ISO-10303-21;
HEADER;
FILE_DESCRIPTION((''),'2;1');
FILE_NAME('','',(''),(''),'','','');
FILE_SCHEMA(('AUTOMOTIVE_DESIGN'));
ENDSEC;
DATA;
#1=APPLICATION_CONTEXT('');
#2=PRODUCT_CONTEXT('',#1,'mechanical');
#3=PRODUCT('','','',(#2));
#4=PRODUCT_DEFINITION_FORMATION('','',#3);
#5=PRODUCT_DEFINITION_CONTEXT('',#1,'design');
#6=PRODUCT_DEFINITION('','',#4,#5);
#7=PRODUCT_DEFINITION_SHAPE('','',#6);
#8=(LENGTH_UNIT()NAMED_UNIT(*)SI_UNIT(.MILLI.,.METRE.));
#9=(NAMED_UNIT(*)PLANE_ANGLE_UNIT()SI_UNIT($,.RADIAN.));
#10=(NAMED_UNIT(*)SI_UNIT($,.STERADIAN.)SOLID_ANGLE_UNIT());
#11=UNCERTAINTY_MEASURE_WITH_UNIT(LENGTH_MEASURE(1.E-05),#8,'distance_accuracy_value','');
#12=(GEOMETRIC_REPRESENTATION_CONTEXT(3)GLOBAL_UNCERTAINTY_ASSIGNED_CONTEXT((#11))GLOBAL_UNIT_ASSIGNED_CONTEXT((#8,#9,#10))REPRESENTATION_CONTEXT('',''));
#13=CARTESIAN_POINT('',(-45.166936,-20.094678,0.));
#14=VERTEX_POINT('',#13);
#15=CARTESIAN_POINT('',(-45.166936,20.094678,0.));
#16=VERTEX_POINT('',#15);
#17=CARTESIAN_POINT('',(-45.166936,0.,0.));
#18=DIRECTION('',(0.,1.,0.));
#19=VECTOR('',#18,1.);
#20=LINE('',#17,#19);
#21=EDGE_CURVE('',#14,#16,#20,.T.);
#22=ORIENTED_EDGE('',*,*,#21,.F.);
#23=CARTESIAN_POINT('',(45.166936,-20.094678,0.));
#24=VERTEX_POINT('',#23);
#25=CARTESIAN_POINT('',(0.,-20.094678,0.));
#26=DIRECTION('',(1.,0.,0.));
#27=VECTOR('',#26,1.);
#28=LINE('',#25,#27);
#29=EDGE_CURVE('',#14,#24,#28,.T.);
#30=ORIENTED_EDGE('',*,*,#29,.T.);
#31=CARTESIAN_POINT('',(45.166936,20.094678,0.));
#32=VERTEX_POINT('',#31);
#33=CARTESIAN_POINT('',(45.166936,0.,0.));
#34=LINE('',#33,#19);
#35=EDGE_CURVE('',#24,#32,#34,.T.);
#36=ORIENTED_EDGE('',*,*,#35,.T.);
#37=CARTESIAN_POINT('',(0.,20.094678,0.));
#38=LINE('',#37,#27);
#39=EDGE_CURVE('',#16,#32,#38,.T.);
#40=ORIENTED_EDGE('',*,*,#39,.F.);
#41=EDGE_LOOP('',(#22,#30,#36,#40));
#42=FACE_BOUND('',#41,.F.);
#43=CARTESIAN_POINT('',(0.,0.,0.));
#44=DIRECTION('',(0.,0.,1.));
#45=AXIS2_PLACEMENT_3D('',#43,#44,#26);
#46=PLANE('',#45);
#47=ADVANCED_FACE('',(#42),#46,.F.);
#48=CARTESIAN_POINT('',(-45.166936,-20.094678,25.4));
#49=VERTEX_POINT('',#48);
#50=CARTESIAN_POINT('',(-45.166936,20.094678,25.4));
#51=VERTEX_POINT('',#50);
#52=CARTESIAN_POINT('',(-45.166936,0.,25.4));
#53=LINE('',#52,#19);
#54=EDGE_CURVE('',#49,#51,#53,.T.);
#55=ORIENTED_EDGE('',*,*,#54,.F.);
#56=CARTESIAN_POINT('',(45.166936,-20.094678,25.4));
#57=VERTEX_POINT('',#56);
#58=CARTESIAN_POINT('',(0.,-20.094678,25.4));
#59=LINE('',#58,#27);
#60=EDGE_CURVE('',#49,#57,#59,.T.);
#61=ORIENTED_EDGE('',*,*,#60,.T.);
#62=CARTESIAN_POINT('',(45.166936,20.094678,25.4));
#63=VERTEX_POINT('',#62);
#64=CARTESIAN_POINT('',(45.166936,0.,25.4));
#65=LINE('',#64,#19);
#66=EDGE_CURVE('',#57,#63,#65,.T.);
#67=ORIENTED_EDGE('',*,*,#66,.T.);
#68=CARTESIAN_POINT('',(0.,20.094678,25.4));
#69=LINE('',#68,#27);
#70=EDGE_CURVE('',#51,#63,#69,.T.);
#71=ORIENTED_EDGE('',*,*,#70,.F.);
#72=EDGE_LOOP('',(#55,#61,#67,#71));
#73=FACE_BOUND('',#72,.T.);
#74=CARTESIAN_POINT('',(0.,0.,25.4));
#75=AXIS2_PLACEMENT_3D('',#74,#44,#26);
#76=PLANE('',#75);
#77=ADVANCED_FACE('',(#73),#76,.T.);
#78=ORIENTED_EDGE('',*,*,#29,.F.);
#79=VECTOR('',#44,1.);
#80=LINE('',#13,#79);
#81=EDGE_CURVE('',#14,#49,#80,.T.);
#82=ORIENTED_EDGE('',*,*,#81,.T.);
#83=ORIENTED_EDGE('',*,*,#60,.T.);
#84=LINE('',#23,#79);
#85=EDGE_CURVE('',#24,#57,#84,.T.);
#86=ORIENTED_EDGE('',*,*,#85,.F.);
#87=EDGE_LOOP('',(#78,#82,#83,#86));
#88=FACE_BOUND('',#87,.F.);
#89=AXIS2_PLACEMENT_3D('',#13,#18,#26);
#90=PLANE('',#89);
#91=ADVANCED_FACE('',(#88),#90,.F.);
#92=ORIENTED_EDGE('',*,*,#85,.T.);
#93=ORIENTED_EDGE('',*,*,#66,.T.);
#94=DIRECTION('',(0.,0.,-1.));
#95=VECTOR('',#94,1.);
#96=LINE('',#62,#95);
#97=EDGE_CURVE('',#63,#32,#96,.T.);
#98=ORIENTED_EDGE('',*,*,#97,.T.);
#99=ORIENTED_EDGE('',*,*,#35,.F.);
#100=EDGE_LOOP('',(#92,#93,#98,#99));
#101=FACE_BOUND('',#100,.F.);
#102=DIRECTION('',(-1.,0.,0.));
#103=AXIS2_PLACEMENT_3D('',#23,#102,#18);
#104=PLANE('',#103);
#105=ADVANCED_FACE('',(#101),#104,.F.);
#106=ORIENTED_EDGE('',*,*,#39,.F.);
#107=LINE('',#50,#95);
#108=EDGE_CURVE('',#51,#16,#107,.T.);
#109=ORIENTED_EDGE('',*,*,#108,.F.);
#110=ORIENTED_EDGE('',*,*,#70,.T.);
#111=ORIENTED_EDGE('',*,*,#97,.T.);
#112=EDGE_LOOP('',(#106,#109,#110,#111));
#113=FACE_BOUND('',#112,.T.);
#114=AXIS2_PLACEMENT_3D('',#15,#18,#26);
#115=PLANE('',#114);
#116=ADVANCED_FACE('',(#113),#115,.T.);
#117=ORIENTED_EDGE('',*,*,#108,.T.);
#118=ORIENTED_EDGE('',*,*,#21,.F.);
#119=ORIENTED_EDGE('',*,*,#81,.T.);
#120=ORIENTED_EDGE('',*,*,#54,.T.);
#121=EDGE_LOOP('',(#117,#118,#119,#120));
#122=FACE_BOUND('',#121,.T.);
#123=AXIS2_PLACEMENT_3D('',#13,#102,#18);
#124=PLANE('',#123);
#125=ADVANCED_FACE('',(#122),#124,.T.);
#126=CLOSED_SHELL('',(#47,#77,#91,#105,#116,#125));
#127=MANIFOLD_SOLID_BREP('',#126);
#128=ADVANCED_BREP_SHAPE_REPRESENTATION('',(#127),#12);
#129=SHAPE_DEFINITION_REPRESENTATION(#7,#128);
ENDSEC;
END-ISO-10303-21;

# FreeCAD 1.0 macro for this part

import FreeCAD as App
import Part
import Sketcher
Q = App.Units.Quantity

doc = App.newDocument("Part")
body = doc.addObject("PartDesign::Body", "Body")

sketch1 = body.newObject("Sketcher::SketchObject", "Sketch")
sketch1.AttachmentSupport = (doc.getObject("XY_Plane"), [""])
sketch1.MapMode = "FlatFace"
sketch1.addGeometry([
    Part.LineSegment(App.Vector(-45, 20, 0), App.Vector(-45, -20, 0)),
    Part.LineSegment(App.Vector(-45, -20, 0), App.Vector(45, -20, 0)),
    Part.LineSegment(App.Vector(45, -20, 0), App.Vector(45, 20, 0)),
    Part.LineSegment(App.Vector(45, 20, 0), App.Vector(-45, 20, 0)),
], False)
sketch1.addConstraint([
    Sketcher.Constraint("Coincident", 0, 2, 1, 1),
    Sketcher.Constraint("Coincident", 1, 2, 2, 1),
    Sketcher.Constraint("Coincident", 2, 2, 3, 1),
    Sketcher.Constraint("Coincident", 3, 2, 0, 1),
    Sketcher.Constraint("Vertical", 0),
    Sketcher.Constraint("Horizontal", 1),
    Sketcher.Constraint("Vertical", 2),
    Sketcher.Constraint("Horizontal", 3),
    Sketcher.Constraint("Symmetric", 0, 2, 2, 2, -1, 1),
    Sketcher.Constraint("DistanceX", 1, 1, 1, 2, Q("90.333872 mm")),
    Sketcher.Constraint("DistanceY", 0, 2, 0, 1, Q("40.189356 mm")),
])
pad1 = body.newObject("PartDesign::Pad", "Pad")
pad1.Profile = sketch1
pad1.Length = Q("1 in")

sketch2 = body.newObject("Sketcher::SketchObject", "Sketch001")
sketch2.AttachmentSupport = (doc.getObject("XY_Plane"), [""])
sketch2.MapMode = "FlatFace"
sketch2.addGeometry([
    Part.LineSegment(App.Vector(-45, -20, 0), App.Vector(-45, 20, 0)),
    Part.LineSegment(App.Vector(-45, 20, 0), App.Vector(45, 20, 0)),
    Part.LineSegment(App.Vector(45, 20, 0), App.Vector(45, -20, 0)),
    Part.LineSegment(App.Vector(45, -20, 0), App.Vector(-45, -20, 0)),
], False)
sketch2.addConstraint([
    Sketcher.Constraint("Coincident", 0, 2, 1, 1),
    Sketcher.Constraint("Coincident", 1, 2, 2, 1),
    Sketcher.Constraint("Coincident", 2, 2, 3, 1),
    Sketcher.Constraint("Coincident", 3, 2, 0, 1),
    Sketcher.Constraint("Vertical", 0),
    Sketcher.Constraint("Horizontal", 1),
    Sketcher.Constraint("Vertical", 2),
    Sketcher.Constraint("Horizontal", 3),
    Sketcher.Constraint("Symmetric", 0, 2, 2, 2, -1, 1),
    Sketcher.Constraint("DistanceX", 1, 1, 1, 2, Q("90.333872 mm")),
    Sketcher.Constraint("DistanceY", 0, 1, 0, 2, Q("40.189356 mm")),
])
pad2 = body.newObject("PartDesign::Pad", "Pad001")
pad2.Profile = sketch2
pad2.Length = Q("0.23 in")
pad3 = body.newObject("PartDesign::Pad", "Pad002")
pad3.Profile = sketch2
pad3.Length = Q("0.15 in")

doc.recompute()
